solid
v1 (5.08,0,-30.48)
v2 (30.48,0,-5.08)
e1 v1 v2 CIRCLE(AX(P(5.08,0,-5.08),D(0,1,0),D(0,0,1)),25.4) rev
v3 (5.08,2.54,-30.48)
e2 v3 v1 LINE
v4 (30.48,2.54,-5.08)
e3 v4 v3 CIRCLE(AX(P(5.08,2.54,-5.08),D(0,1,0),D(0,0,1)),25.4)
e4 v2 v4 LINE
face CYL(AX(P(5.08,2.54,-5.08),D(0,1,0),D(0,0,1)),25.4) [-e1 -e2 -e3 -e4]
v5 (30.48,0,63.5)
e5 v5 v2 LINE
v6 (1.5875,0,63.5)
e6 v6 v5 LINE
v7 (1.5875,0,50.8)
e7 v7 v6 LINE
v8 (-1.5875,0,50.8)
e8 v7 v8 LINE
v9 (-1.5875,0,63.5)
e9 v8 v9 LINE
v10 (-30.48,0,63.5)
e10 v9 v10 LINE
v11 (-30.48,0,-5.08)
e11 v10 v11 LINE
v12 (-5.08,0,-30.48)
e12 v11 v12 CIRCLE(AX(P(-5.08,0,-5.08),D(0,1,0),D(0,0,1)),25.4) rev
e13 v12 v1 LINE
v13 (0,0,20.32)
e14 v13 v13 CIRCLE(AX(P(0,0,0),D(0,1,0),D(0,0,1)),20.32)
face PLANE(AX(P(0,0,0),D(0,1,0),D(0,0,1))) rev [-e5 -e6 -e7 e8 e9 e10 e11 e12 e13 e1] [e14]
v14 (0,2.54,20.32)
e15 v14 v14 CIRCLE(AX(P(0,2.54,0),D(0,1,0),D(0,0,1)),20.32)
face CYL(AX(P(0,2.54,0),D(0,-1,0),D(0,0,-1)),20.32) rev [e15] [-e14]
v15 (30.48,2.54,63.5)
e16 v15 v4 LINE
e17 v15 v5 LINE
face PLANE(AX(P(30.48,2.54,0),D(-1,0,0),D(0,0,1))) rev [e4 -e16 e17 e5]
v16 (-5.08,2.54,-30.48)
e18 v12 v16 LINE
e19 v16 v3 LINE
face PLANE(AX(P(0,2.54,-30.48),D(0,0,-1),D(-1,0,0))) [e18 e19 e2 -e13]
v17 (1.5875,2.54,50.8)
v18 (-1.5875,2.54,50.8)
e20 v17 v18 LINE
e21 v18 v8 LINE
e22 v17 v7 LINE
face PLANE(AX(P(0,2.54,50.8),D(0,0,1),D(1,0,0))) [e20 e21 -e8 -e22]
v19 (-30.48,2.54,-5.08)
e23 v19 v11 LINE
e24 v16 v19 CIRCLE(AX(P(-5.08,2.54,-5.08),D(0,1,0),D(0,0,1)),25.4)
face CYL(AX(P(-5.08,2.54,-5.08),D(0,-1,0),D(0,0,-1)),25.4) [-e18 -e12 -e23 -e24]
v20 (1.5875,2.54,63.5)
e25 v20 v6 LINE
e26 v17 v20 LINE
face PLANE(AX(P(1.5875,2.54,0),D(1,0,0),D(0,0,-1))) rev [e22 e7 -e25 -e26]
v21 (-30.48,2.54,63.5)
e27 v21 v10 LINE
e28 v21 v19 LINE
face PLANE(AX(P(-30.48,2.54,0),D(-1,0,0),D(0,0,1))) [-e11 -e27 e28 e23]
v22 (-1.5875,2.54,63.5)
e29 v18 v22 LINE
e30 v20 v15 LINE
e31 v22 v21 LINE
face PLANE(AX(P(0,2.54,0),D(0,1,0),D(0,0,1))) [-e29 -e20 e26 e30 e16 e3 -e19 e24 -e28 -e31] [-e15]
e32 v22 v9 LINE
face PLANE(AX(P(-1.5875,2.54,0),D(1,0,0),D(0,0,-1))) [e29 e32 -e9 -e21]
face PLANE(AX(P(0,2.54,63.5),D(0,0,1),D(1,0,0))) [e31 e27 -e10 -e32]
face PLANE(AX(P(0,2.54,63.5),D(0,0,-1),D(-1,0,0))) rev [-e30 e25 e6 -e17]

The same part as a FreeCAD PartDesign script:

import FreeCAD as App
import Part
import Sketcher
Q = App.Units.Quantity


def edges_at(feature, points):
    """Names of the edges that pass closest to the given points."""
    edges = feature.Shape.Edges
    near = lambda p: min(range(len(edges)), key=lambda i: edges[i].distToShape(Part.Vertex(*p))[0])
    return sorted({f"Edge{near(p) + 1}" for p in points})


def add_polygon(sketch, points):
    """Adds a closed chain of lines whose ends are joined by coincident constraints."""
    first, n = sketch.GeometryCount, len(points)
    for a, b in zip(points, points[1:] + points[:1]):
        sketch.addGeometry(Part.LineSegment(App.Vector(*a, 0), App.Vector(*b, 0)), False)
    for i in range(n):
        sketch.addConstraint(Sketcher.Constraint("Coincident", first + i, 2, first + (i + 1) % n, 1))

doc = App.newDocument("Part")
body = doc.addObject("PartDesign::Body", "Body")

# Sketch on XZ plane
sketch1 = doc.addObject("Sketcher::SketchObject", "Sketch")
body.addObject(sketch1)
sketch1.AttachmentSupport = (doc.XZ_Plane, [""])
sketch1.MapMode = "FlatFace"
add_polygon(sketch1, [(-30.5, -30.5), (-30.5, 63.5), (-1.6, 63.5), (-1.6, 50.8), (1.6, 50.8), (1.6, 63.5), (30.5, 63.5), (30.5, -30.5)])  # lines 0-7
sketch1.addGeometry(Part.Circle(App.Vector(0, 0, 0), App.Vector(0, 0, 1), 20.3), False)  # 8
sketch1.addConstraint(Sketcher.Constraint("Vertical", 0))
sketch1.addConstraint(Sketcher.Constraint("Horizontal", 1))
sketch1.addConstraint(Sketcher.Constraint("Vertical", 2))
sketch1.addConstraint(Sketcher.Constraint("Horizontal", 3))
sketch1.addConstraint(Sketcher.Constraint("Vertical", 4))
sketch1.addConstraint(Sketcher.Constraint("Horizontal", 5))
sketch1.addConstraint(Sketcher.Constraint("Vertical", 6))
sketch1.addConstraint(Sketcher.Constraint("Horizontal", 7))
sketch1.addConstraint(Sketcher.Constraint("Coincident", 8, 3, -1, 1))
sketch1.addConstraint(Sketcher.Constraint("Symmetric", 1, 2, 4, 2, -2))
sketch1.addConstraint(Sketcher.Constraint("Equal", 1, 5))
sketch1.addConstraint(Sketcher.Constraint("Diameter", 8, Q("1.6 in")))
sketch1.addConstraint(Sketcher.Constraint("DistanceX", 7, 2, 7, 1, Q("2.4 in")))
sketch1.addConstraint(Sketcher.Constraint("DistanceY", 0, 1, 0, 2, Q("3.7 in")))
sketch1.addConstraint(Sketcher.Constraint("DistanceY", 2, 2, 2, 1, Q("0.5 in")))
sketch1.addConstraint(Sketcher.Constraint("DistanceY", -1, 1, 2, 2, Q("2 in")))
sketch1.addConstraint(Sketcher.Constraint("DistanceX", 3, 1, 3, 2, Q("0.125 in")))
pad1 = doc.addObject("PartDesign::Pad", "Pad")
body.addObject(pad1)
pad1.Profile = sketch1
pad1.Length = Q("0.1 in")
pad1.Reversed = True
doc.recompute()

fillet = doc.addObject("PartDesign::Fillet", "Fillet")
body.addObject(fillet)
fillet.Base = (pad1, edges_at(pad1, [(-30.48, 1.27, -30.48), (30.48, 1.27, -30.48)]))
fillet.Radius = Q("1 in")

doc.recompute()
